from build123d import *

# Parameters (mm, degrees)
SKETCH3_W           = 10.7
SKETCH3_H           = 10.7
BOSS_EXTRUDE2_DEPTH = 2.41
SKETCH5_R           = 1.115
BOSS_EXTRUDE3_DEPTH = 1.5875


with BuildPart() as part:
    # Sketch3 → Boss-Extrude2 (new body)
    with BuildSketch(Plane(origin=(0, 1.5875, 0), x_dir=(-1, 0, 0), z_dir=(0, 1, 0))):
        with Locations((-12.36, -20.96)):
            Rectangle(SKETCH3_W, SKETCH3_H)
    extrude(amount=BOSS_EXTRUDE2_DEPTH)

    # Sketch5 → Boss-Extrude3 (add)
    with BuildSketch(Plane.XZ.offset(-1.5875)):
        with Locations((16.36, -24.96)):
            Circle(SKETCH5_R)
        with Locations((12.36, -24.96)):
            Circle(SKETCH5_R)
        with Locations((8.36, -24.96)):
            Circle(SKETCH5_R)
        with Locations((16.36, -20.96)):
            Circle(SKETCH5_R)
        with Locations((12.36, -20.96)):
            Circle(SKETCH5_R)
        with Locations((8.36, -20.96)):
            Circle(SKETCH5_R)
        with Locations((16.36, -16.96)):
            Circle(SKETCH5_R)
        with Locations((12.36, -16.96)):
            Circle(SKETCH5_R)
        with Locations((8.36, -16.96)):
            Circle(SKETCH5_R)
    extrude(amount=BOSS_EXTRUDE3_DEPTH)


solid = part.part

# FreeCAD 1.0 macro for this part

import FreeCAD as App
import Part
import Sketcher
from FreeCAD import Vector
Q = App.Units.Quantity

doc = App.newDocument("Part")
body = doc.addObject("PartDesign::Body", "Body")

# Sketch on XZ plane
sketch1 = doc.addObject("Sketcher::SketchObject", "Sketch")
body.addObject(sketch1)
sketch1.AttachmentSupport = (doc.XZ_Plane, [""])
sketch1.MapMode = "FlatFace"
sketch1.AttachmentOffset = App.Placement(Vector(0, 0, -1.5875), App.Rotation())
sketch1.addGeometry([
    Part.LineSegment(Vector(18, -16, 0), Vector(18, -26, 0)),
    Part.LineSegment(Vector(18, -26, 0), Vector(7, -26, 0)),
    Part.LineSegment(Vector(7, -26, 0), Vector(7, -16, 0)),
    Part.LineSegment(Vector(7, -16, 0), Vector(18, -16, 0)),
], False)
sketch1.addConstraint([
    Sketcher.Constraint("Coincident", 0, 2, 1, 1),
    Sketcher.Constraint("Coincident", 1, 2, 2, 1),
    Sketcher.Constraint("Coincident", 2, 2, 3, 1),
    Sketcher.Constraint("Coincident", 3, 2, 0, 1),
    Sketcher.Constraint("Vertical", 0),
    Sketcher.Constraint("Horizontal", 1),
    Sketcher.Constraint("Vertical", 2),
    Sketcher.Constraint("Horizontal", 3),
    Sketcher.Constraint("Equal", 3, 0),
    Sketcher.Constraint("DistanceX", 1, 2, 1, 1, Q("10.7 mm")),
    Sketcher.Constraint("DistanceX", -1, 1, 0, 2, Q("17.71 mm")),
    Sketcher.Constraint("DistanceY", 0, 2, -1, 1, Q("26.31 mm")),
])
pad1 = doc.addObject("PartDesign::Pad", "Pad")
body.addObject(pad1)
pad1.Profile = sketch1
pad1.Length = 2.41
pad1.Reversed = True

# Sketch on XZ plane
sketch2 = doc.addObject("Sketcher::SketchObject", "Sketch001")
body.addObject(sketch2)
sketch2.AttachmentSupport = (doc.XZ_Plane, [""])
sketch2.MapMode = "FlatFace"
sketch2.AttachmentOffset = App.Placement(Vector(0, 0, -1.5875), App.Rotation())
sketch2.addGeometry([
    Part.Circle(Vector(16.4, -25, 0), Vector(0, 0, 1), 1.1),  # 0
    Part.Circle(Vector(12.4, -25, 0), Vector(0, 0, 1), 1.1),  # 1
    Part.Circle(Vector(8.4, -25, 0), Vector(0, 0, 1), 1.1),  # 2
    Part.Circle(Vector(16.4, -21, 0), Vector(0, 0, 1), 1.1),  # 3
    Part.Circle(Vector(12.4, -21, 0), Vector(0, 0, 1), 1.1),  # 4
    Part.Circle(Vector(8.4, -21, 0), Vector(0, 0, 1), 1.1),  # 5
    Part.Circle(Vector(16.4, -17, 0), Vector(0, 0, 1), 1.1),  # 6
    Part.Circle(Vector(12.4, -17, 0), Vector(0, 0, 1), 1.1),  # 7
    Part.Circle(Vector(8.4, -17, 0), Vector(0, 0, 1), 1.1),  # 8
], False)
sketch2.addConstraint([
    Sketcher.Constraint("Equal", 0, 1),
    Sketcher.Constraint("Equal", 1, 2),
    Sketcher.Constraint("Equal", 2, 3),
    Sketcher.Constraint("Equal", 3, 4),
    Sketcher.Constraint("Equal", 4, 5),
    Sketcher.Constraint("Equal", 5, 6),
    Sketcher.Constraint("Equal", 6, 7),
    Sketcher.Constraint("Equal", 7, 8),
    Sketcher.Constraint("Horizontal", 0, 3, 1, 3),
    Sketcher.Constraint("Horizontal", 1, 3, 2, 3),
    Sketcher.Constraint("Horizontal", 3, 3, 4, 3),
    Sketcher.Constraint("Horizontal", 4, 3, 5, 3),
    Sketcher.Constraint("Horizontal", 6, 3, 7, 3),
    Sketcher.Constraint("Horizontal", 7, 3, 8, 3),
    Sketcher.Constraint("Vertical", 0, 3, 3, 3),
    Sketcher.Constraint("Vertical", 1, 3, 4, 3),
    Sketcher.Constraint("Vertical", 2, 3, 5, 3),
    Sketcher.Constraint("Vertical", 3, 3, 6, 3),
    Sketcher.Constraint("Vertical", 4, 3, 7, 3),
    Sketcher.Constraint("Vertical", 5, 3, 8, 3),
    Sketcher.Constraint("Diameter", 0, Q("2.23 mm")),
    Sketcher.Constraint("DistanceX", 1, 3, 0, 3, Q("4 mm")),
    Sketcher.Constraint("DistanceX", 2, 3, 1, 3, Q("4 mm")),
    Sketcher.Constraint("DistanceY", 0, 3, 3, 3, Q("4 mm")),
    Sketcher.Constraint("DistanceY", 3, 3, 6, 3, Q("4 mm")),
    Sketcher.Constraint("DistanceX", -1, 1, 0, 3, Q("16.36 mm")),
    Sketcher.Constraint("DistanceY", 0, 3, -1, 1, Q("24.96 mm")),
])
pad2 = doc.addObject("PartDesign::Pad", "Pad001")
body.addObject(pad2)
pad2.Profile = sketch2
pad2.Length = 1.5875

doc.recompute()
